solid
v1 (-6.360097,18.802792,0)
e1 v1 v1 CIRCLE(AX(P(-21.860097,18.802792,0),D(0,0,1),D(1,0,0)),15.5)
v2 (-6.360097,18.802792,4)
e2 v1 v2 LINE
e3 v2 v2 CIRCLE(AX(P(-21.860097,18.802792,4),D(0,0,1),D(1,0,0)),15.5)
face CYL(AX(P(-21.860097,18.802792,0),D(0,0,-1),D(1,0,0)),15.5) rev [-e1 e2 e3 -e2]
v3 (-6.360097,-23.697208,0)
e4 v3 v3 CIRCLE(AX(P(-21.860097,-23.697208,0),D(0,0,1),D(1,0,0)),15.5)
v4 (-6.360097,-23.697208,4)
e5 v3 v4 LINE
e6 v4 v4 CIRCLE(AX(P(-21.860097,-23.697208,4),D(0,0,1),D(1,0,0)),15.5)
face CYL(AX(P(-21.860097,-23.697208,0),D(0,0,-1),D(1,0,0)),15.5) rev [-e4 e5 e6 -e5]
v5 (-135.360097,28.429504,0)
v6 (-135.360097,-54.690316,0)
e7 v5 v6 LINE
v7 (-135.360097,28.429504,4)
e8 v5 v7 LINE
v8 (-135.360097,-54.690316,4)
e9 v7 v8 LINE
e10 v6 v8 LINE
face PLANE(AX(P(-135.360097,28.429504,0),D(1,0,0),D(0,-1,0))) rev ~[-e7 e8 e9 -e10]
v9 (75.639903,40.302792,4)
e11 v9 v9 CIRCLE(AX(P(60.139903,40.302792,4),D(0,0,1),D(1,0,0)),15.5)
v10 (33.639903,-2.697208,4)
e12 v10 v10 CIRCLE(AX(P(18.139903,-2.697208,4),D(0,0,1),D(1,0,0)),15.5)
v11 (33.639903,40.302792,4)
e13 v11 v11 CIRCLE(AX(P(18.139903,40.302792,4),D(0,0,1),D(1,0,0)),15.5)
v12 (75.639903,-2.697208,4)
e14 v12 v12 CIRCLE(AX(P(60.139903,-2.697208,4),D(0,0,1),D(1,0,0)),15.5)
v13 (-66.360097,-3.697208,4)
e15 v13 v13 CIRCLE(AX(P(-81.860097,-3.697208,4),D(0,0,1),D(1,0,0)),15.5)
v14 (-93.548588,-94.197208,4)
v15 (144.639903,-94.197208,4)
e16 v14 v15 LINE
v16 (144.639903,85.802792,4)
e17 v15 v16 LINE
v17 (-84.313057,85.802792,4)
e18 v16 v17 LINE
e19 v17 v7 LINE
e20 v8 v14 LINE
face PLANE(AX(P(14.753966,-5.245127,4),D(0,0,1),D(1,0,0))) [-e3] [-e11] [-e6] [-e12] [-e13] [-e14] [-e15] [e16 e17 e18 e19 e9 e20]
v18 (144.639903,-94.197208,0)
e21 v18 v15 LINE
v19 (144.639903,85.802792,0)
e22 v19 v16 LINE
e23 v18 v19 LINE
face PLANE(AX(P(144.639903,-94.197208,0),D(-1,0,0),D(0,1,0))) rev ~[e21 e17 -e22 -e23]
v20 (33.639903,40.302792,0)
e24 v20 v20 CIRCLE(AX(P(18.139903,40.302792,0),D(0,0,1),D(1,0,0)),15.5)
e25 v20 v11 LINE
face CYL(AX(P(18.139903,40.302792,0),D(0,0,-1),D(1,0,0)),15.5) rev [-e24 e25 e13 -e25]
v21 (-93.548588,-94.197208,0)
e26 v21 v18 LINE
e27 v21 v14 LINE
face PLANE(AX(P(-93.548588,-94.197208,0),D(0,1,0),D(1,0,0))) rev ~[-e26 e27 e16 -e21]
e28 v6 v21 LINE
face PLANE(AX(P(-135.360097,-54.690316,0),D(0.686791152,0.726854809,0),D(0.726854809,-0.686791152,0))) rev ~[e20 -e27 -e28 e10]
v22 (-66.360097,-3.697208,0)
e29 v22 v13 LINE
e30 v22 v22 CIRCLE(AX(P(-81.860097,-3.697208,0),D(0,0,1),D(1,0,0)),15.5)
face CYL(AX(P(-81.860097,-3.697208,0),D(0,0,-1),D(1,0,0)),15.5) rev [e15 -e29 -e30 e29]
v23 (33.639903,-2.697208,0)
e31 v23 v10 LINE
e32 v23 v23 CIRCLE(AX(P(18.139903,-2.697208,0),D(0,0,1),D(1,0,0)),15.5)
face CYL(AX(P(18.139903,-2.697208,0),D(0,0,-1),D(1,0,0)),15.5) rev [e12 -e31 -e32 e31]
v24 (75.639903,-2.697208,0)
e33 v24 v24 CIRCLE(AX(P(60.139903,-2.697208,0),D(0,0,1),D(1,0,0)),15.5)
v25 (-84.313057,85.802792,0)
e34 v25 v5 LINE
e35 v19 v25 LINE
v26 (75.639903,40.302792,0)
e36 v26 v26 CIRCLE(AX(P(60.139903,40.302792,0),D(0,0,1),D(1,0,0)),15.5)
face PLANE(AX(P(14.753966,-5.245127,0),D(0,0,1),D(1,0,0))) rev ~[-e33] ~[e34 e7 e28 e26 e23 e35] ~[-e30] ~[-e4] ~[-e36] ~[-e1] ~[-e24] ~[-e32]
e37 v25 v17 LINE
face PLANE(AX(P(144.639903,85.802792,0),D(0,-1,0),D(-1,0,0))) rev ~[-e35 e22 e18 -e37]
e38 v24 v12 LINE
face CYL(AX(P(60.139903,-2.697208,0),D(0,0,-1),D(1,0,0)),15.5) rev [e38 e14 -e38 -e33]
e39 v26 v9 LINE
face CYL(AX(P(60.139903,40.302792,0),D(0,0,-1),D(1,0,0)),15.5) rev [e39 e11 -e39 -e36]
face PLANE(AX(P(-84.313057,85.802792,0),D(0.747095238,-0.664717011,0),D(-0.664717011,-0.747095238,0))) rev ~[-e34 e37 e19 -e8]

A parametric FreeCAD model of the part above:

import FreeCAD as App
import Part
import Sketcher

V = App.Vector
Q = App.Units.Quantity


def add_polygon(sketch, points):
    """Adds a closed chain of lines whose ends are joined by coincident constraints."""
    first, n = sketch.GeometryCount, len(points)
    for a, b in zip(points, points[1:] + points[:1]):
        sketch.addGeometry(Part.LineSegment(App.Vector(*a, 0), App.Vector(*b, 0)), False)
    for i in range(n):
        sketch.addConstraint(Sketcher.Constraint("Coincident", first + i, 2, first + (i + 1) % n, 1))

doc = App.newDocument("Part")
body = doc.addObject("PartDesign::Body", "Body")

sketch1 = body.newObject("Sketcher::SketchObject", "Sketch")
sketch1.AttachmentSupport = (doc.getObject("XY_Plane"), [""])
sketch1.MapMode = "FlatFace"
add_polygon(sketch1, [(144.639903, 85.802792), (-84.313057, 85.802792), (-135.360097, 28.429504), (-135.360097, -54.690316), (-93.548588, -94.197208), (144.639903, -94.197208)])
sketch1.addGeometry(Part.Circle(V(-21.860097, -23.697208, 0), V(0, 0, 1), 15.5), False)
sketch1.addGeometry(Part.Circle(V(-81.860097, -3.697208, 0), V(0, 0, 1), 15.5), False)
sketch1.addGeometry(Part.Circle(V(18.139903, -2.697208, 0), V(0, 0, 1), 15.5), False)
sketch1.addGeometry(Part.Circle(V(60.139903, -2.697208, 0), V(0, 0, 1), 15.5), False)
sketch1.addGeometry(Part.Circle(V(-21.860097, 18.802792, 0), V(0, 0, 1), 15.5), False)
sketch1.addGeometry(Part.Circle(V(18.139903, 40.302792, 0), V(0, 0, 1), 15.5), False)
sketch1.addGeometry(Part.Circle(V(60.139903, 40.302792, 0), V(0, 0, 1), 15.5), False)
sketch1.addConstraint([
    Sketcher.Constraint("Horizontal", 0),
    Sketcher.Constraint("Vertical", 2),
    Sketcher.Constraint("Horizontal", 4),
    Sketcher.Constraint("Vertical", 5),
    Sketcher.Constraint("Equal", 6, 7),
    Sketcher.Constraint("Equal", 7, 8),
    Sketcher.Constraint("Equal", 8, 9),
    Sketcher.Constraint("Equal", 9, 10),
    Sketcher.Constraint("Equal", 10, 11),
    Sketcher.Constraint("Equal", 11, 12),
    Sketcher.Constraint("Horizontal", 8, 3, 9, 3),
    Sketcher.Constraint("Horizontal", 11, 3, 12, 3),
    Sketcher.Constraint("Vertical", 6, 3, 10, 3),
    Sketcher.Constraint("Vertical", 8, 3, 11, 3),
    Sketcher.Constraint("Vertical", 9, 3, 12, 3),
    Sketcher.Constraint("Diameter", 6, Q("31 mm")),
    Sketcher.Constraint("DistanceY", 5, 1, 5, 2, Q("180 mm")),
    Sketcher.Constraint("DistanceX", 7, 3, 6, 3, Q("60 mm")),
    Sketcher.Constraint("DistanceY", 6, 3, 7, 3, Q("20 mm")),
    Sketcher.Constraint("DistanceX", 6, 3, 8, 3, Q("40 mm")),
    Sketcher.Constraint("DistanceY", 6, 3, 8, 3, Q("21 mm")),
    Sketcher.Constraint("DistanceX", 8, 3, 9, 3, Q("42 mm")),
    Sketcher.Constraint("DistanceY", 8, 3, 11, 3, Q("43 mm")),
    Sketcher.Constraint("DistanceY", 10, 3, 0, 2, Q("67 mm")),
    Sketcher.Constraint("DistanceY", 6, 3, 10, 3, Q("42.5 mm")),
    Sketcher.Constraint("DistanceX", 1, 2, 7, 3, Q("53.5 mm")),
    Sketcher.Constraint("DistanceX", 9, 3, 4, 2, Q("84.5 mm")),
    Sketcher.Constraint("DistanceX", 0, 2, 0, 1, Q("228.95296 mm")),
    Sketcher.Constraint("DistanceX", 4, 1, 4, 2, Q("238.188491 mm")),
    Sketcher.Constraint("DistanceY", 2, 2, 2, 1, Q("83.11982 mm")),
    Sketcher.Constraint("Distance", 3, Q("57.52388 mm")),
    Sketcher.Constraint("DistanceY", 6, 3, -1, 1, Q("23.697208 mm")),
    Sketcher.Constraint("DistanceX", 6, 3, -1, 1, Q("21.860097 mm")),
])
pad1 = body.newObject("PartDesign::Pad", "Pad")
pad1.Profile = sketch1
pad1.Length = 4

doc.recompute()
